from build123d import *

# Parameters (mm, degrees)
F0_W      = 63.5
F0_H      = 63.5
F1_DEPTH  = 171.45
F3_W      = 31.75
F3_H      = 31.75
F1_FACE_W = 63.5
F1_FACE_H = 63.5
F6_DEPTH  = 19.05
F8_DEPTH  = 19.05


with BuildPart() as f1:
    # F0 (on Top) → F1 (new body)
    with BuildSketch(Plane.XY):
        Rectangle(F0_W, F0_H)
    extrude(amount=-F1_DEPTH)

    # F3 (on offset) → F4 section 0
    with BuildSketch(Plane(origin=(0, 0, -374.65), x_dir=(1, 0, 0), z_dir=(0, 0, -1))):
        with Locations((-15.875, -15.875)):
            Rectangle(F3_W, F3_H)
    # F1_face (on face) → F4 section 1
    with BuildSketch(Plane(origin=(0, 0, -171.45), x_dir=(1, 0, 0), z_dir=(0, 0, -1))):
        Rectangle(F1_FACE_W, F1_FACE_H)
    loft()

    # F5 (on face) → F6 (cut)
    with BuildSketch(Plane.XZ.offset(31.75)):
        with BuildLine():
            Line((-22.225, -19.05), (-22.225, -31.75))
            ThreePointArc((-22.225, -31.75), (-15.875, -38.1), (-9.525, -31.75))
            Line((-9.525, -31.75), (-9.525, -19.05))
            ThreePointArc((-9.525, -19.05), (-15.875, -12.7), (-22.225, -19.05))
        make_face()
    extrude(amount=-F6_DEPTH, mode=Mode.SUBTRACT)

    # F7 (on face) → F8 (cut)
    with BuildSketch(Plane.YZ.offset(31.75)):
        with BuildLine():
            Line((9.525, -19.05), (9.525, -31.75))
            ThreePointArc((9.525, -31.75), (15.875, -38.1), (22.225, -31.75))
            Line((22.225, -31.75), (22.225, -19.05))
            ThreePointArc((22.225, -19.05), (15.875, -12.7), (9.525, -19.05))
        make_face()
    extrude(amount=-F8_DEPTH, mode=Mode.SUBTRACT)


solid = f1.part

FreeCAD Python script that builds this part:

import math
import FreeCAD as App
import Part
import Sketcher

V = App.Vector
Q = App.Units.Quantity


def add_polygon(sketch, points):
    """Adds a closed chain of lines whose ends are joined by coincident constraints."""
    first, n = sketch.GeometryCount, len(points)
    for a, b in zip(points, points[1:] + points[:1]):
        sketch.addGeometry(Part.LineSegment(App.Vector(*a, 0), App.Vector(*b, 0)), False)
    for i in range(n):
        sketch.addConstraint(Sketcher.Constraint("Coincident", first + i, 2, first + (i + 1) % n, 1))

doc = App.newDocument("Part")
body = doc.addObject("PartDesign::Body", "Body")

sketch1 = body.newObject("Sketcher::SketchObject", "Sketch")
sketch1.AttachmentSupport = (doc.getObject("XY_Plane"), [""])
sketch1.MapMode = "FlatFace"
add_polygon(sketch1, [(-32, 32), (-32, -32), (32, -32), (32, 32)])
sketch1.addConstraint([
    Sketcher.Constraint("Vertical", 0),
    Sketcher.Constraint("Horizontal", 1),
    Sketcher.Constraint("Vertical", 2),
    Sketcher.Constraint("Horizontal", 3),
    Sketcher.Constraint("Symmetric", 0, 2, 2, 2, -1, 1),
    Sketcher.Constraint("Equal", 3, 0),
    Sketcher.Constraint("DistanceX", 1, 1, 1, 2, Q("2.5 in")),
])
pad1 = body.newObject("PartDesign::Pad", "Pad")
pad1.Profile = sketch1
pad1.Length = Q("6.75 in")
pad1.Reversed = True

sketch2 = body.newObject("Sketcher::SketchObject", "Sketch001")
sketch2.AttachmentSupport = (doc.getObject("XY_Plane"), [""])
sketch2.MapMode = "FlatFace"
sketch2.AttachmentOffset = App.Placement(V(0, 0, -14.75 * 25.4), App.Rotation())
add_polygon(sketch2, [(-32, 0), (-32, 32), (0, 32), (0, 0)])
sketch2.addConstraint([
    Sketcher.Constraint("Vertical", 0),
    Sketcher.Constraint("Horizontal", 1),
    Sketcher.Constraint("Vertical", 2),
    Sketcher.Constraint("Horizontal", 3),
    Sketcher.Constraint("Coincident", 2, 2, -1, 1),
    Sketcher.Constraint("Equal", 3, 0),
    Sketcher.Constraint("DistanceX", 1, 1, 1, 2, Q("1.25 in")),
])

sketch3 = body.newObject("Sketcher::SketchObject", "Sketch002")
sketch3.AttachmentSupport = (doc.getObject("XY_Plane"), [""])
sketch3.MapMode = "FlatFace"
sketch3.AttachmentOffset = App.Placement(V(0, 0, -6.75 * 25.4), App.Rotation())
add_polygon(sketch3, [(-32, -32), (-32, 32), (32, 32), (32, -32)])
sketch3.addConstraint([
    Sketcher.Constraint("Vertical", 0),
    Sketcher.Constraint("Horizontal", 1),
    Sketcher.Constraint("Vertical", 2),
    Sketcher.Constraint("Horizontal", 3),
    Sketcher.Constraint("Symmetric", 0, 2, 2, 2, -1, 1),
    Sketcher.Constraint("Equal", 3, 0),
    Sketcher.Constraint("DistanceX", 1, 1, 1, 2, Q("2.5 in")),
])

additiveloft = body.newObject("PartDesign::AdditiveLoft", "AdditiveLoft")
additiveloft.Profile = sketch2
additiveloft.Sections = [sketch3]

sketch4 = body.newObject("Sketcher::SketchObject", "Sketch003")
sketch4.AttachmentSupport = (doc.getObject("XZ_Plane"), [""])
sketch4.MapMode = "FlatFace"
sketch4.AttachmentOffset = App.Placement(V(0, 0, 1.25 * 25.4), App.Rotation())
sketch4.addGeometry([
    Part.LineSegment(V(-22, -19, 0), V(-22, -32, 0)),
    Part.ArcOfCircle(Part.Circle(V(-16, -32, 0), V(0, 0, 1), 6), math.radians(180), math.radians(360)),
    Part.LineSegment(V(-10, -32, 0), V(-10, -19, 0)),
    Part.ArcOfCircle(Part.Circle(V(-16, -19, 0), V(0, 0, 1), 6), math.radians(0), math.radians(180)),
], False)
sketch4.addConstraint([
    Sketcher.Constraint("Tangent", 0, 2, 1, 1),
    Sketcher.Constraint("Tangent", 1, 2, 2, 1),
    Sketcher.Constraint("Tangent", 2, 2, 3, 1),
    Sketcher.Constraint("Tangent", 3, 2, 0, 1),
    Sketcher.Constraint("Vertical", 0),
    Sketcher.Constraint("Vertical", 2),
    Sketcher.Constraint("Radius", 1, Q("0.25 in")),
    Sketcher.Constraint("DistanceY", 0, 2, 0, 1, Q("0.5 in")),
    Sketcher.Constraint("DistanceY", 1, 3, -1, 1, Q("1.25 in")),
    Sketcher.Constraint("DistanceX", 1, 3, -1, 1, Q("0.625 in")),
])
pocket1 = body.newObject("PartDesign::Pocket", "Pocket")
pocket1.Profile = sketch4
pocket1.Length = Q("0.75 in")

sketch5 = body.newObject("Sketcher::SketchObject", "Sketch004")
sketch5.AttachmentSupport = (doc.getObject("YZ_Plane"), [""])
sketch5.MapMode = "FlatFace"
sketch5.AttachmentOffset = App.Placement(V(0, 0, 1.25 * 25.4), App.Rotation())
sketch5.addGeometry([
    Part.LineSegment(V(10, -19, 0), V(10, -32, 0)),
    Part.ArcOfCircle(Part.Circle(V(16, -32, 0), V(0, 0, 1), 6), math.radians(180), math.radians(360)),
    Part.LineSegment(V(22, -32, 0), V(22, -19, 0)),
    Part.ArcOfCircle(Part.Circle(V(16, -19, 0), V(0, 0, 1), 6), math.radians(0), math.radians(180)),
], False)
sketch5.addConstraint([
    Sketcher.Constraint("Tangent", 0, 2, 1, 1),
    Sketcher.Constraint("Tangent", 1, 2, 2, 1),
    Sketcher.Constraint("Tangent", 2, 2, 3, 1),
    Sketcher.Constraint("Tangent", 3, 2, 0, 1),
    Sketcher.Constraint("Vertical", 0),
    Sketcher.Constraint("Vertical", 2),
    Sketcher.Constraint("Radius", 1, Q("0.25 in")),
    Sketcher.Constraint("DistanceY", 0, 2, 0, 1, Q("0.5 in")),
    Sketcher.Constraint("DistanceY", 1, 3, -1, 1, Q("1.25 in")),
    Sketcher.Constraint("DistanceX", -1, 1, 1, 3, Q("0.625 in")),
])
pocket2 = body.newObject("PartDesign::Pocket", "Pocket001")
pocket2.Profile = sketch5
pocket2.Length = Q("0.75 in")

doc.recompute()
